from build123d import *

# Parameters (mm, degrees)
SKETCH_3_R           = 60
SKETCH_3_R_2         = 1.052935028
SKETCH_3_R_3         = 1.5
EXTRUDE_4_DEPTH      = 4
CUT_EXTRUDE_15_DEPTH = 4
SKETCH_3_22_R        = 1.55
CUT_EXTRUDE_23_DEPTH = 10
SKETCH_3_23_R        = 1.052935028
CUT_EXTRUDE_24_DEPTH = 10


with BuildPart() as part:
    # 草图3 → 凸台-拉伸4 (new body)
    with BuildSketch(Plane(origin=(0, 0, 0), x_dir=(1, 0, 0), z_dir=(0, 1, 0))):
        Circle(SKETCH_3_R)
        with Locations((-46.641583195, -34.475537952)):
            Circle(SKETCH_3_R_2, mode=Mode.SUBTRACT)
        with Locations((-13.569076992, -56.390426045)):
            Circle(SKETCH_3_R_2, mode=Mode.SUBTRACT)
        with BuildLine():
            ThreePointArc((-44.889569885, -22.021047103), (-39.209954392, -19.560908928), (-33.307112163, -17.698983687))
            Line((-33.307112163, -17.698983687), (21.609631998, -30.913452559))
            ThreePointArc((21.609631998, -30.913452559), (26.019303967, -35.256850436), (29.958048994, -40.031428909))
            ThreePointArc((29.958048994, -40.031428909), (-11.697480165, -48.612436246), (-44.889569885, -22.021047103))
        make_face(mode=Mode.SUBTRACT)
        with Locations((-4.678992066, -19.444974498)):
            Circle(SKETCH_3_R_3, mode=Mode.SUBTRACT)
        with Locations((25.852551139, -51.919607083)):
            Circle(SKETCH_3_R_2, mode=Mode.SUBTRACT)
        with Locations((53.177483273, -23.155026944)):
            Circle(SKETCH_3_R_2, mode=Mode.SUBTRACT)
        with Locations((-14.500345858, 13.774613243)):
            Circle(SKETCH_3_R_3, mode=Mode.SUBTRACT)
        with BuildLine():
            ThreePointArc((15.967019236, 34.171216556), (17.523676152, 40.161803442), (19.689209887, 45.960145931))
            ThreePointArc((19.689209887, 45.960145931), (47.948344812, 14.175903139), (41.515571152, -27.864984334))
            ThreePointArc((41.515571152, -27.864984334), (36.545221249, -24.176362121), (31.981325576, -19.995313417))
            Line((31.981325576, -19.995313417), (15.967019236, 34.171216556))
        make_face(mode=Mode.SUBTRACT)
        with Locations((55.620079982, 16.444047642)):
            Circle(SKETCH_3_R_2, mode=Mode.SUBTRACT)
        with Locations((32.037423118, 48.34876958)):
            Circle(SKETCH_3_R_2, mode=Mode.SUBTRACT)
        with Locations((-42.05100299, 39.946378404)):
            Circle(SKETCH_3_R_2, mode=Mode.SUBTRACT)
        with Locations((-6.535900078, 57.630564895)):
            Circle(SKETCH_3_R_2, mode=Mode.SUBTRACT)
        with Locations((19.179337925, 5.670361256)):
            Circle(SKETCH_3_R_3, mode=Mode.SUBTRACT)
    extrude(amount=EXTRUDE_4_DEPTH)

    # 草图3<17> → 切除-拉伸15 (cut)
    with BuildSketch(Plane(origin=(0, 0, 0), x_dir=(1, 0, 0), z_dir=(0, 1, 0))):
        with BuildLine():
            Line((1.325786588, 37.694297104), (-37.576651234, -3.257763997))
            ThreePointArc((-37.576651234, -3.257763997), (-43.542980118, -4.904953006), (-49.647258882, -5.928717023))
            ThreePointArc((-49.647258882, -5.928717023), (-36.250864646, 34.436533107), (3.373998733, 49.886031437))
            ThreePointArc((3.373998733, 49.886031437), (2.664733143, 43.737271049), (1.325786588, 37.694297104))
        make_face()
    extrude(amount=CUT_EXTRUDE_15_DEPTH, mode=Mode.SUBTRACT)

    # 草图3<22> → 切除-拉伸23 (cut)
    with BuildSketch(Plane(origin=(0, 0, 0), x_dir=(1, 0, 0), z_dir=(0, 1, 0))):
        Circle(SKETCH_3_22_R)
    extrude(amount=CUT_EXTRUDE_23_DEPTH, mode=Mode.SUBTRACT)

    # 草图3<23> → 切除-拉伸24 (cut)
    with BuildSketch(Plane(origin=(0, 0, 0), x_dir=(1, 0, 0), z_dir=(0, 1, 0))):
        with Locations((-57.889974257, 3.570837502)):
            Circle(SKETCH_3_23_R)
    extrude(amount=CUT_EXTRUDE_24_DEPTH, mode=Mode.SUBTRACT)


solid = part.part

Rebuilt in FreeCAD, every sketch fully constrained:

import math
import FreeCAD as App
import Part
import Sketcher

V = App.Vector

doc = App.newDocument("Part")
body = doc.addObject("PartDesign::Body", "Body")

# Sketch on XZ plane
sketch1 = doc.addObject("Sketcher::SketchObject", "Sketch")
body.addObject(sketch1)
sketch1.AttachmentSupport = (doc.XZ_Plane, [""])
sketch1.MapMode = "FlatFace"
sketch1.addGeometry([
    Part.Circle(V(0, 0, 0), V(0, 0, 1), 60),  # 0
    Part.Circle(V(-46.6, 34.5, 0), V(0, 0, 1), 1.1),  # 1
    Part.Circle(V(-13.6, 56.4, 0), V(0, 0, 1), 1.1),  # 2
    Part.ArcOfCircle(Part.Circle(V(0, 0, 0), V(0, 0, 1), 50), math.radians(53), math.radians(154)),  # 3
    Part.ArcOfCircle(Part.Circle(V(-18.2, 75.8, 0), V(0, 0, 1), 60), math.radians(-116.38), math.radians(-104.55)),  # 4
    Part.LineSegment(V(-33.3, 17.7, 0), V(21.6, 30.9, 0)),  # 5
    Part.ArcOfCircle(Part.Circle(V(-18.2, 75.8, 0), V(0, 0, 1), 60), math.radians(-48.39), math.radians(-36.56)),  # 6
    Part.Circle(V(-4.7, 19.4, 0), V(0, 0, 1), 1.5),  # 7
    Part.Circle(V(25.9, 51.9, 0), V(0, 0, 1), 1.1),  # 8
    Part.Circle(V(53.2, 23.2, 0), V(0, 0, 1), 1.1),  # 9
    Part.Circle(V(-14.5, -13.8, 0), V(0, 0, 1), 1.5),  # 10
    Part.Circle(V(-42.1, -39.9, 0), V(0, 0, 1), 1.1),  # 11
    Part.Circle(V(-6.5, -57.6, 0), V(0, 0, 1), 1.1),  # 12
    Part.Circle(V(19.2, -5.7, 0), V(0, 0, 1), 1.5),  # 13
    Part.LineSegment(V(32, 20, 0), V(16, -34.2, 0)),  # 14
    Part.ArcOfCircle(Part.Circle(V(74.7, -22.1, 0), V(0, 0, 1), 60), math.radians(-168.39), math.radians(-156.56)),  # 15
    Part.ArcOfCircle(Part.Circle(V(0, 0, 0), V(0, 0, 1), 50), math.radians(-67), math.radians(34)),  # 16
    Part.ArcOfCircle(Part.Circle(V(74.7, -22.1, 0), V(0, 0, 1), 60), math.radians(123.62), math.radians(135.45)),  # 17
    Part.Circle(V(55.6, -16.4, 0), V(0, 0, 1), 1.1),  # 18
    Part.Circle(V(32, -48.3, 0), V(0, 0, 1), 1.1),  # 19
], False)
sketch1.addConstraint([
    Sketcher.Constraint("Coincident", 3, 2, 4, 1),
    Sketcher.Constraint("Coincident", 4, 2, 5, 1),
    Sketcher.Constraint("Coincident", 5, 2, 6, 1),
    Sketcher.Constraint("Coincident", 6, 2, 3, 1),
    Sketcher.Constraint("Coincident", 14, 2, 15, 1),
    Sketcher.Constraint("Coincident", 15, 2, 16, 1),
    Sketcher.Constraint("Coincident", 16, 2, 17, 1),
    Sketcher.Constraint("Coincident", 17, 2, 14, 1),
    Sketcher.Constraint("Coincident", 0, 3, -1, 1),
    Sketcher.Constraint("Coincident", 3, 3, -1, 1),
    Sketcher.Constraint("Coincident", 16, 3, -1, 1),
    Sketcher.Constraint("Coincident", 6, 3, 4, 3),
    Sketcher.Constraint("Coincident", 17, 3, 15, 3),
    Sketcher.Constraint("Equal", 1, 2),
    Sketcher.Constraint("Equal", 0, 4),
    Sketcher.Constraint("Equal", 4, 6),
    Sketcher.Constraint("Equal", 2, 8),
    Sketcher.Constraint("Equal", 8, 9),
    Sketcher.Constraint("Equal", 7, 10),
    Sketcher.Constraint("Equal", 9, 11),
    Sketcher.Constraint("Equal", 11, 12),
    Sketcher.Constraint("Equal", 10, 13),
    Sketcher.Constraint("Equal", 6, 15),
    Sketcher.Constraint("Equal", 3, 16),
    Sketcher.Constraint("Equal", 15, 17),
    Sketcher.Constraint("Equal", 12, 18),
    Sketcher.Constraint("Equal", 18, 19),
    Sketcher.Constraint("Equal", 5, 14),
    Sketcher.Constraint("Diameter", 0, 120.0),
    Sketcher.Constraint("Diameter", 7, 3.0),
    Sketcher.Constraint("Radius", 3, 50.0),
    Sketcher.Constraint("Diameter", 1, 2.10587),
    Sketcher.Constraint("DistanceX", 12, 3, -1, 1, 6.5359),
    Sketcher.Constraint("DistanceY", 9, 3, 2, 3, 33.235399),
    Sketcher.Constraint("DistanceY", 9, 3, 6, 2, 16.876402),
    Sketcher.Constraint("DistanceY", 15, 2, 18, 3, 29.516098),
    Sketcher.Constraint("DistanceX", -1, 1, 8, 3, 25.852551),
    Sketcher.Constraint("DistanceY", 11, 3, -1, 1, 39.946378),
    Sketcher.Constraint("DistanceY", 13, 3, -1, 1, 5.670361),
    Sketcher.Constraint("DistanceX", -1, 1, 18, 3, 55.62008),
    Sketcher.Constraint("DistanceY", 19, 3, -1, 1, 48.34877),
    Sketcher.Constraint("DistanceX", 3, 2, -1, 1, 44.88957),
    Sketcher.Constraint("DistanceX", -1, 1, 5, 2, 21.609632),
    Sketcher.Constraint("DistanceX", -1, 1, 6, 2, 29.958049),
    Sketcher.Constraint("DistanceX", -1, 1, 14, 2, 15.967019),
    Sketcher.Constraint("DistanceX", -1, 1, 15, 2, 19.68921),
    Sketcher.Constraint("DistanceX", -1, 1, 16, 2, 41.515571),
    Sketcher.Constraint("DistanceY", 1, 3, 2, 3, 21.914888),
    Sketcher.Constraint("DistanceX", 1, 3, 4, 3, 28.408129),
    Sketcher.Constraint("DistanceY", 7, 3, 2, 3, 36.945452),
    Sketcher.Constraint("DistanceX", 1, 3, 7, 3, 41.962591),
    Sketcher.Constraint("DistanceX", 2, 3, 8, 3, 39.421628),
    Sketcher.Constraint("DistanceY", 8, 3, 2, 3, 4.470819),
    Sketcher.Constraint("DistanceX", 2, 3, 9, 3, 66.74656),
    Sketcher.Constraint("DistanceY", 10, 3, 1, 3, 48.250151),
    Sketcher.Constraint("DistanceX", 10, 3, 2, 3, 0.931269),
    Sketcher.Constraint("DistanceX", 11, 3, 7, 3, 37.372011),
    Sketcher.Constraint("DistanceY", 12, 3, 10, 3, 43.855952),
    Sketcher.Constraint("DistanceX", 7, 3, 13, 3, 23.85833),
    Sketcher.Constraint("DistanceX", 19, 3, 17, 3, 42.70209),
    Sketcher.Constraint("DistanceX", 1, 3, 4, 2, 13.334471),
])
pad1 = doc.addObject("PartDesign::Pad", "Pad")
body.addObject(pad1)
pad1.Profile = sketch1
pad1.Length = 4
pad1.Reversed = True

# Sketch on XZ plane
sketch2 = doc.addObject("Sketcher::SketchObject", "Sketch001")
body.addObject(sketch2)
sketch2.AttachmentSupport = (doc.XZ_Plane, [""])
sketch2.MapMode = "FlatFace"
sketch2.addGeometry([
    Part.LineSegment(V(-38, 3, 0), V(1, -38, 0)),
    Part.ArcOfCircle(Part.Circle(V(-57, -54, 0), V(0, 0, 1), 60), math.radians(3.62), math.radians(15.45)),
    Part.ArcOfCircle(Part.Circle(V(0, 0, 0), V(0, 0, 1), 50), math.radians(173), math.radians(274)),
    Part.ArcOfCircle(Part.Circle(V(-57, -54, 0), V(0, 0, 1), 60), math.radians(71.61), math.radians(83.44)),
], False)
sketch2.addConstraint([
    Sketcher.Constraint("Coincident", 0, 2, 1, 2),
    Sketcher.Constraint("Coincident", 1, 1, 2, 2),
    Sketcher.Constraint("Coincident", 2, 1, 3, 2),
    Sketcher.Constraint("Coincident", 3, 1, 0, 1),
    Sketcher.Constraint("Coincident", 2, 3, -1, 1),
    Sketcher.Constraint("Coincident", 3, 3, 1, 3),
    Sketcher.Constraint("Equal", 1, 3),
    Sketcher.Constraint("Radius", 1, 60.0),
    Sketcher.Constraint("Radius", 2, 50.0),
    Sketcher.Constraint("DistanceX", -1, 1, 1, 1, 3.373999),
    Sketcher.Constraint("DistanceX", 3, 3, 2, 1, 6.858799),
    Sketcher.Constraint("DistanceX", 3, 1, -1, 1, 37.576651),
    Sketcher.Constraint("DistanceY", 3, 3, 0, 2, 15.983671),
])
pocket1 = doc.addObject("PartDesign::Pocket", "Pocket")
body.addObject(pocket1)
pocket1.Profile = sketch2
pocket1.Length = 4

# Sketch on XZ plane
sketch3 = doc.addObject("Sketcher::SketchObject", "Sketch002")
body.addObject(sketch3)
sketch3.AttachmentSupport = (doc.XZ_Plane, [""])
sketch3.MapMode = "FlatFace"
sketch3.addGeometry(Part.Circle(V(0, 0, 0), V(0, 0, 1), 1.6), False)
sketch3.addConstraint([
    Sketcher.Constraint("Coincident", 0, 3, -1, 1),
    Sketcher.Constraint("Diameter", 0, 3.1),
])
pocket2 = doc.addObject("PartDesign::Pocket", "Pocket001")
body.addObject(pocket2)
pocket2.Profile = sketch3
pocket2.Length = 10

# Sketch on XZ plane
sketch4 = doc.addObject("Sketcher::SketchObject", "Sketch003")
body.addObject(sketch4)
sketch4.AttachmentSupport = (doc.XZ_Plane, [""])
sketch4.MapMode = "FlatFace"
sketch4.addGeometry(Part.Circle(V(-57.9, -3.6, 0), V(0, 0, 1), 1.1), False)
sketch4.addConstraint([
    Sketcher.Constraint("Diameter", 0, 2.10587),
    Sketcher.Constraint("DistanceX", 0, 3, -1, 1, 57.889974),
    Sketcher.Constraint("DistanceY", 0, 3, -1, 1, 3.570838),
])
pocket3 = doc.addObject("PartDesign::Pocket", "Pocket002")
body.addObject(pocket3)
pocket3.Profile = sketch4
pocket3.Length = 10

doc.recompute()
